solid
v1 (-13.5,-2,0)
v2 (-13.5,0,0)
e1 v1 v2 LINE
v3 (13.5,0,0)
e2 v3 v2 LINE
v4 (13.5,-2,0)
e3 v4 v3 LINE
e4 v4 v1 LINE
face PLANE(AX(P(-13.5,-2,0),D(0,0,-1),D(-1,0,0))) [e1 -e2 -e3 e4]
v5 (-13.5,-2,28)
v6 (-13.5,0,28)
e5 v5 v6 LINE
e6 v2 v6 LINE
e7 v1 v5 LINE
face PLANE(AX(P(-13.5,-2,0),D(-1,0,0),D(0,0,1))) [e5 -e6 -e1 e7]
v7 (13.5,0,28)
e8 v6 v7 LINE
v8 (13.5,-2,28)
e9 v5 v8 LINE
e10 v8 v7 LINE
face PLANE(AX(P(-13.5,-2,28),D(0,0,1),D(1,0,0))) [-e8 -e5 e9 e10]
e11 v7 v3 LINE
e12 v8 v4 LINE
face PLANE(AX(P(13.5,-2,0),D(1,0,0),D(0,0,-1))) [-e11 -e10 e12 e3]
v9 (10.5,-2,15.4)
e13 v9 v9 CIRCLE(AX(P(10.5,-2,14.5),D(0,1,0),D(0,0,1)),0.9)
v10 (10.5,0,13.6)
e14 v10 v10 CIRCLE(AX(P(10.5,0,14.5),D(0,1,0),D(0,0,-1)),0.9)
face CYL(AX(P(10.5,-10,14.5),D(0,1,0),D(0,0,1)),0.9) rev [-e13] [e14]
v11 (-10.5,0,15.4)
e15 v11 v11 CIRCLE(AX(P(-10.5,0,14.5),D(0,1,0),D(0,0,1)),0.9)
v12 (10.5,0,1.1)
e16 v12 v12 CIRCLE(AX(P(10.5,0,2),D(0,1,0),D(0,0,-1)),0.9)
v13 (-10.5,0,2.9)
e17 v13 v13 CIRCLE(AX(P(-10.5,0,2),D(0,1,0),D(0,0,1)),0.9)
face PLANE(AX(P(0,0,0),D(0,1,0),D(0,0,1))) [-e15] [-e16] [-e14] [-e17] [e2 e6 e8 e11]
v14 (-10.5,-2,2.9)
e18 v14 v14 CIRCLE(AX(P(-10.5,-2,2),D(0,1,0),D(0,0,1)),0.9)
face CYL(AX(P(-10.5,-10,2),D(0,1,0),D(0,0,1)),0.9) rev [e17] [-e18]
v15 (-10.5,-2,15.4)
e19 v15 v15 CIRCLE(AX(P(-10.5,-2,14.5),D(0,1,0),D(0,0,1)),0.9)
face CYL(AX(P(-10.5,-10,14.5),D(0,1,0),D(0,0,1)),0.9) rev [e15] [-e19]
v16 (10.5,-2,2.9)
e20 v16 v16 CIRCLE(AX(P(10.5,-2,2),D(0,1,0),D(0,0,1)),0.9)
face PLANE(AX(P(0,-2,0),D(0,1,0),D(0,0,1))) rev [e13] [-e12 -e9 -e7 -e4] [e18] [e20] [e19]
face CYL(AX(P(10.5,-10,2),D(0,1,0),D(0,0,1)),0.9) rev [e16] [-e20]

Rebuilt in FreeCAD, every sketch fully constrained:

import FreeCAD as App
import Part
import Sketcher
Q = App.Units.Quantity


def add_polygon(sketch, points):
    """Adds a closed chain of lines whose ends are joined by coincident constraints."""
    first, n = sketch.GeometryCount, len(points)
    for a, b in zip(points, points[1:] + points[:1]):
        sketch.addGeometry(Part.LineSegment(App.Vector(*a, 0), App.Vector(*b, 0)), False)
    for i in range(n):
        sketch.addConstraint(Sketcher.Constraint("Coincident", first + i, 2, first + (i + 1) % n, 1))

doc = App.newDocument("Part")
body = doc.addObject("PartDesign::Body", "Body")

# Sketch on XZ plane
sketch1 = doc.addObject("Sketcher::SketchObject", "Sketch")
body.addObject(sketch1)
sketch1.AttachmentSupport = (doc.XZ_Plane, [""])
sketch1.MapMode = "FlatFace"
add_polygon(sketch1, [(-14, 0), (-14, 28), (14, 28), (14, 0)])  # lines 0-3
sketch1.addConstraint(Sketcher.Constraint("Vertical", 0))
sketch1.addConstraint(Sketcher.Constraint("Horizontal", 1))
sketch1.addConstraint(Sketcher.Constraint("Vertical", 2))
sketch1.addConstraint(Sketcher.Constraint("Horizontal", 3))
sketch1.addConstraint(Sketcher.Constraint("Symmetric", 2, 2, 3, 2, -1, 1))
sketch1.addConstraint(Sketcher.Constraint("DistanceX", 1, 1, 1, 2, Q("27 mm")))
sketch1.addConstraint(Sketcher.Constraint("DistanceY", 0, 1, 0, 2, Q("28 mm")))
pad1 = doc.addObject("PartDesign::Pad", "Pad")
body.addObject(pad1)
pad1.Profile = sketch1
pad1.Length = 2

# Sketch on XZ plane
sketch2 = doc.addObject("Sketcher::SketchObject", "Sketch001")
body.addObject(sketch2)
sketch2.AttachmentSupport = (doc.XZ_Plane, [""])
sketch2.MapMode = "FlatFace"
sketch2.addGeometry(Part.Circle(App.Vector(-10.5, 2, 0), App.Vector(0, 0, 1), 0.9), False)
sketch2.addGeometry(Part.Circle(App.Vector(-10.5, 14.5, 0), App.Vector(0, 0, 1), 0.9), False)
sketch2.addGeometry(Part.Circle(App.Vector(10.5, 14.5, 0), App.Vector(0, 0, 1), 0.9), False)
sketch2.addGeometry(Part.Circle(App.Vector(10.5, 2, 0), App.Vector(0, 0, 1), 0.9), False)
sketch2.addConstraint(Sketcher.Constraint("Equal", 0, 1))
sketch2.addConstraint(Sketcher.Constraint("Equal", 1, 2))
sketch2.addConstraint(Sketcher.Constraint("Equal", 2, 3))
sketch2.addConstraint(Sketcher.Constraint("Symmetric", 1, 3, 2, 3, -2))
sketch2.addConstraint(Sketcher.Constraint("Symmetric", 0, 3, 3, 3, -2))
sketch2.addConstraint(Sketcher.Constraint("Vertical", 0, 3, 1, 3))
sketch2.addConstraint(Sketcher.Constraint("Diameter", 0, Q("1.8 mm")))
sketch2.addConstraint(Sketcher.Constraint("DistanceY", -1, 1, 0, 3, Q("2 mm")))
sketch2.addConstraint(Sketcher.Constraint("DistanceX", 1, 3, 2, 3, Q("21 mm")))
sketch2.addConstraint(Sketcher.Constraint("DistanceY", -1, 1, 1, 3, Q("14.5 mm")))
pocket1 = doc.addObject("PartDesign::Pocket", "Pocket")
body.addObject(pocket1)
pocket1.Profile = sketch2
pocket1.Length = 10
pocket1.Reversed = True

doc.recompute()
